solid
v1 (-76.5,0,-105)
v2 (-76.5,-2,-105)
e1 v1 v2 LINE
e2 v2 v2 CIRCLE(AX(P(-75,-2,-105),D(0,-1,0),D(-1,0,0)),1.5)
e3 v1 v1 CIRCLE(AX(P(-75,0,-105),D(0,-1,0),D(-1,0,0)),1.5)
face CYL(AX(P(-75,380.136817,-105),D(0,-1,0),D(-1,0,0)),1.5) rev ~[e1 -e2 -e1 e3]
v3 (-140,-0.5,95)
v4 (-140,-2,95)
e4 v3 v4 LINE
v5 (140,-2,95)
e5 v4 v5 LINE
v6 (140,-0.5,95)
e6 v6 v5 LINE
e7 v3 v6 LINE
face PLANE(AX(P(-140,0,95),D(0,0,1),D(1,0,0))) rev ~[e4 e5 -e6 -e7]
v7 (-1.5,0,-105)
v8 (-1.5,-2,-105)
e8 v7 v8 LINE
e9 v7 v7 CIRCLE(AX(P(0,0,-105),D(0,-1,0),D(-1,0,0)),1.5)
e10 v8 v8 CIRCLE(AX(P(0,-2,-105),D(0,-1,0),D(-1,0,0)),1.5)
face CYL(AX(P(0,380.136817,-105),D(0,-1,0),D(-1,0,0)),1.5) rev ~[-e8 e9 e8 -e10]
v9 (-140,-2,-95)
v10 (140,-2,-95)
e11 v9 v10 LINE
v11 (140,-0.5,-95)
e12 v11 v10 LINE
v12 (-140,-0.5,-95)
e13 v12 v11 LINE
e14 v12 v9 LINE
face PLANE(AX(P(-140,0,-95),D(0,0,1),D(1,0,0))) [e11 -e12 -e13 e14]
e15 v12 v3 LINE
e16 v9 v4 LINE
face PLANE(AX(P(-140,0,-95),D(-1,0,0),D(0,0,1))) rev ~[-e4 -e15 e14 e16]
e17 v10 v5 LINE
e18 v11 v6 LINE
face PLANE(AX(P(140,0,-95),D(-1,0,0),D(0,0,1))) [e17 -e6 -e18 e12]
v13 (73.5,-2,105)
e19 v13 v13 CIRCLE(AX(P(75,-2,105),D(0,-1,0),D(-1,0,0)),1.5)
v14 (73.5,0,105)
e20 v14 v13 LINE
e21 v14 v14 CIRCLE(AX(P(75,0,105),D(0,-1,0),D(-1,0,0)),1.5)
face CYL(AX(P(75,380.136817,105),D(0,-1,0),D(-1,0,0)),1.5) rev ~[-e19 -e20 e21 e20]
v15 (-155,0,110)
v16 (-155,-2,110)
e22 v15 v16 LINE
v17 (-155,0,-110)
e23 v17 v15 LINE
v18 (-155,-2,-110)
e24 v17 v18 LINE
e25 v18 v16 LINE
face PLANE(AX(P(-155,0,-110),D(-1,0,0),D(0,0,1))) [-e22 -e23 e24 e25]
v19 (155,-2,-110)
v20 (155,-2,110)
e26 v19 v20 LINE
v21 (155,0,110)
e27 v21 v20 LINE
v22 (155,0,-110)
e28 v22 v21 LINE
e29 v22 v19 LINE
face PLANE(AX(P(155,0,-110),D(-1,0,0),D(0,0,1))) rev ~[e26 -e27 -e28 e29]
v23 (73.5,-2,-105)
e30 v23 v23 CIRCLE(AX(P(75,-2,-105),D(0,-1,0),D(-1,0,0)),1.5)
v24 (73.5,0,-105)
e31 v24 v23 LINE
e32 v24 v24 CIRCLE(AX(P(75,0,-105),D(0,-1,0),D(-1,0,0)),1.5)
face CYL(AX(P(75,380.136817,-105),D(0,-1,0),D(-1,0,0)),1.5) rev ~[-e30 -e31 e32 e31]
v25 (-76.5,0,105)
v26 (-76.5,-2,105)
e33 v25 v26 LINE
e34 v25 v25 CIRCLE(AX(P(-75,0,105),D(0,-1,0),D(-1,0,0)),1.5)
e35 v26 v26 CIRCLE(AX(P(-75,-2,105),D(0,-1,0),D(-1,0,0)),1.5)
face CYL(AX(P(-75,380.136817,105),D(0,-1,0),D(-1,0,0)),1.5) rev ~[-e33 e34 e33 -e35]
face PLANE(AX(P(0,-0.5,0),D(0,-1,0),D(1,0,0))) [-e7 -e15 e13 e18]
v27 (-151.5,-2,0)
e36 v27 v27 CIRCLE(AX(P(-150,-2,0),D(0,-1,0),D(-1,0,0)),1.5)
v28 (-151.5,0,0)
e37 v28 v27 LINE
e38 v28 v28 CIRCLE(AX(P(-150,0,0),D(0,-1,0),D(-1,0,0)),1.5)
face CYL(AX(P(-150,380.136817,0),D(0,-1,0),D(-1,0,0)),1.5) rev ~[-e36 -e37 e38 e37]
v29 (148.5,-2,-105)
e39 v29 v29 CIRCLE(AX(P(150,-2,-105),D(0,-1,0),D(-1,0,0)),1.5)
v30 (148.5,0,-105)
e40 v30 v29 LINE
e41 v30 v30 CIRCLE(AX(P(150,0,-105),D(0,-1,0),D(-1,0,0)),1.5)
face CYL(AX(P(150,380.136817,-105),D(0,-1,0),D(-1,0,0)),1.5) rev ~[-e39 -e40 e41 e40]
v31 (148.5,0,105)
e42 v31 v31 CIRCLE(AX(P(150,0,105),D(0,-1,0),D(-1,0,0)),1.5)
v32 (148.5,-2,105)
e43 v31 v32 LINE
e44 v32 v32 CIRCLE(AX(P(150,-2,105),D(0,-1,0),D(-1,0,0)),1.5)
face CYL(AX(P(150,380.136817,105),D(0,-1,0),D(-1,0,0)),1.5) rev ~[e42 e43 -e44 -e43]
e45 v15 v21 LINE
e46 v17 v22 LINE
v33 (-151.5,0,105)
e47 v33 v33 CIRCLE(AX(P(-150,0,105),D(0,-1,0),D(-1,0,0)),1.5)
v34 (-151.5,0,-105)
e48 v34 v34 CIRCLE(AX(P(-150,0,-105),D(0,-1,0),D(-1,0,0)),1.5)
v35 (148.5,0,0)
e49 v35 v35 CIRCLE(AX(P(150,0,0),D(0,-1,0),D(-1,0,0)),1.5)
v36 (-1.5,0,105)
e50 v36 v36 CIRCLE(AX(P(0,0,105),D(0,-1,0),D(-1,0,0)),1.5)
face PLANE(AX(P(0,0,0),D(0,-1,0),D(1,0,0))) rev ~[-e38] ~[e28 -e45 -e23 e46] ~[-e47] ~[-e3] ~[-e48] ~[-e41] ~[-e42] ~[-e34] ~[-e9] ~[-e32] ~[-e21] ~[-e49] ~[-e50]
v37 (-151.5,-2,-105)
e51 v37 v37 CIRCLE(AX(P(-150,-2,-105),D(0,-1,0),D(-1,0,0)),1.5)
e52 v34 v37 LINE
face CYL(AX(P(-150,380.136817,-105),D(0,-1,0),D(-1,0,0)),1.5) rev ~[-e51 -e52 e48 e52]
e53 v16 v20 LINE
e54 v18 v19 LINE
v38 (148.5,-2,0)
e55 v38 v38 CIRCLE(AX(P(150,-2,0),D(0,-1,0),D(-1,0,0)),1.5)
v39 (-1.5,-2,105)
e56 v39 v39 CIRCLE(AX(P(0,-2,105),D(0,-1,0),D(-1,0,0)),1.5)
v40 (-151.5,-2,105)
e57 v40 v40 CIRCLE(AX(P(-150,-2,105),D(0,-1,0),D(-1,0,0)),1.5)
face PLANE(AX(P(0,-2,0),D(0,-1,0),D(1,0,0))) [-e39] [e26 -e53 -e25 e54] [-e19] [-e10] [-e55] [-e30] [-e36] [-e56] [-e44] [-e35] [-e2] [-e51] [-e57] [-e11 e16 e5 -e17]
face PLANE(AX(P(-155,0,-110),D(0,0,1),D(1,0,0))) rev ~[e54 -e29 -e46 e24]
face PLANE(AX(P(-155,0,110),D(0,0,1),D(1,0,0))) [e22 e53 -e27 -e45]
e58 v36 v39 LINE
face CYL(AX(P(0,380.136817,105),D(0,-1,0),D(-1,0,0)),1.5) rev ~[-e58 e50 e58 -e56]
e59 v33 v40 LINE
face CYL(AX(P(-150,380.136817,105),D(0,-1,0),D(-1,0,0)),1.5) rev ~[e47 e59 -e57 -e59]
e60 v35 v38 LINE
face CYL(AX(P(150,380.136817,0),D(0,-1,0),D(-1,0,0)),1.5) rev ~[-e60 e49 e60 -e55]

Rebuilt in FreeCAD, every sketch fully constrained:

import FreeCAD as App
import Part
import Sketcher

doc = App.newDocument("Part")
body = doc.addObject("PartDesign::Body", "Body")

sketch1 = body.newObject("Sketcher::SketchObject", "Sketch")
sketch1.AttachmentSupport = (doc.getObject("XZ_Plane"), [""])
sketch1.MapMode = "FlatFace"
sketch1.addGeometry(Part.LineSegment(App.Vector(-155, 110, 0), App.Vector(-155, -110, 0)), False)
sketch1.addGeometry(Part.LineSegment(App.Vector(-155, -110, 0), App.Vector(155, -110, 0)), False)
sketch1.addGeometry(Part.LineSegment(App.Vector(155, -110, 0), App.Vector(155, 110, 0)), False)
sketch1.addGeometry(Part.LineSegment(App.Vector(155, 110, 0), App.Vector(-155, 110, 0)), False)
sketch1.addGeometry(Part.LineSegment(App.Vector(140, -95, 0), App.Vector(-140, -95, 0)), False)
sketch1.addGeometry(Part.LineSegment(App.Vector(-140, -95, 0), App.Vector(-140, 95, 0)), False)
sketch1.addGeometry(Part.LineSegment(App.Vector(-140, 95, 0), App.Vector(140, 95, 0)), False)
sketch1.addGeometry(Part.LineSegment(App.Vector(140, 95, 0), App.Vector(140, -95, 0)), False)
sketch1.addConstraint(Sketcher.Constraint("Coincident", 0, 2, 1, 1))
sketch1.addConstraint(Sketcher.Constraint("Coincident", 1, 2, 2, 1))
sketch1.addConstraint(Sketcher.Constraint("Coincident", 2, 2, 3, 1))
sketch1.addConstraint(Sketcher.Constraint("Coincident", 3, 2, 0, 1))
sketch1.addConstraint(Sketcher.Constraint("Coincident", 4, 2, 5, 1))
sketch1.addConstraint(Sketcher.Constraint("Coincident", 5, 2, 6, 1))
sketch1.addConstraint(Sketcher.Constraint("Coincident", 6, 2, 7, 1))
sketch1.addConstraint(Sketcher.Constraint("Coincident", 7, 2, 4, 1))
sketch1.addConstraint(Sketcher.Constraint("Vertical", 0))
sketch1.addConstraint(Sketcher.Constraint("Horizontal", 1))
sketch1.addConstraint(Sketcher.Constraint("Vertical", 2))
sketch1.addConstraint(Sketcher.Constraint("Horizontal", 3))
sketch1.addConstraint(Sketcher.Constraint("Horizontal", 4))
sketch1.addConstraint(Sketcher.Constraint("Vertical", 5))
sketch1.addConstraint(Sketcher.Constraint("Horizontal", 6))
sketch1.addConstraint(Sketcher.Constraint("Vertical", 7))
sketch1.addConstraint(Sketcher.Constraint("Symmetric", 0, 2, 2, 2, -1, 1))
sketch1.addConstraint(Sketcher.Constraint("Symmetric", 4, 2, 6, 2, -1, 1))
sketch1.addConstraint(Sketcher.Constraint("DistanceX", 1, 1, 1, 2, 310.0))
sketch1.addConstraint(Sketcher.Constraint("DistanceX", 4, 2, 4, 1, 280.0))
sketch1.addConstraint(Sketcher.Constraint("DistanceY", 0, 2, 0, 1, 220.0))
sketch1.addConstraint(Sketcher.Constraint("DistanceY", 5, 1, 5, 2, 190.0))
pad1 = body.newObject("PartDesign::Pad", "Pad")
pad1.Profile = sketch1
pad1.Length = 2

sketch2 = body.newObject("Sketcher::SketchObject", "Sketch001")
sketch2.AttachmentSupport = (doc.getObject("XZ_Plane"), [""])
sketch2.MapMode = "FlatFace"
sketch2.addGeometry(Part.Circle(App.Vector(-150, -105, 0), App.Vector(0, 0, 1), 1.5), False)
sketch2.addGeometry(Part.Circle(App.Vector(-75, -105, 0), App.Vector(0, 0, 1), 1.5), False)
sketch2.addGeometry(Part.Circle(App.Vector(0, -105, 0), App.Vector(0, 0, 1), 1.5), False)
sketch2.addGeometry(Part.Circle(App.Vector(75, -105, 0), App.Vector(0, 0, 1), 1.5), False)
sketch2.addGeometry(Part.Circle(App.Vector(150, -105, 0), App.Vector(0, 0, 1), 1.5), False)
sketch2.addGeometry(Part.Circle(App.Vector(150, 0, 0), App.Vector(0, 0, 1), 1.5), False)
sketch2.addGeometry(Part.Circle(App.Vector(150, 105, 0), App.Vector(0, 0, 1), 1.5), False)
sketch2.addGeometry(Part.Circle(App.Vector(75, 105, 0), App.Vector(0, 0, 1), 1.5), False)
sketch2.addGeometry(Part.Circle(App.Vector(0, 105, 0), App.Vector(0, 0, 1), 1.5), False)
sketch2.addGeometry(Part.Circle(App.Vector(-75, 105, 0), App.Vector(0, 0, 1), 1.5), False)
sketch2.addGeometry(Part.Circle(App.Vector(-150, 105, 0), App.Vector(0, 0, 1), 1.5), False)
sketch2.addGeometry(Part.Circle(App.Vector(-150, 0, 0), App.Vector(0, 0, 1), 1.5), False)
sketch2.addConstraint(Sketcher.Constraint("Equal", 0, 1))
sketch2.addConstraint(Sketcher.Constraint("Equal", 1, 2))
sketch2.addConstraint(Sketcher.Constraint("Equal", 2, 3))
sketch2.addConstraint(Sketcher.Constraint("Equal", 3, 4))
sketch2.addConstraint(Sketcher.Constraint("Equal", 4, 5))
sketch2.addConstraint(Sketcher.Constraint("Equal", 5, 6))
sketch2.addConstraint(Sketcher.Constraint("Equal", 6, 7))
sketch2.addConstraint(Sketcher.Constraint("Equal", 7, 8))
sketch2.addConstraint(Sketcher.Constraint("Equal", 8, 9))
sketch2.addConstraint(Sketcher.Constraint("Equal", 9, 10))
sketch2.addConstraint(Sketcher.Constraint("Equal", 10, 11))
sketch2.addConstraint(Sketcher.Constraint("Symmetric", 0, 3, 6, 3, -1, 1))
sketch2.addConstraint(Sketcher.Constraint("Symmetric", 1, 3, 7, 3, -1, 1))
sketch2.addConstraint(Sketcher.Constraint("Symmetric", 2, 3, 8, 3, -1, 1))
sketch2.addConstraint(Sketcher.Constraint("Symmetric", 3, 3, 9, 3, -1, 1))
sketch2.addConstraint(Sketcher.Constraint("Symmetric", 4, 3, 10, 3, -1, 1))
sketch2.addConstraint(Sketcher.Constraint("Symmetric", 5, 3, 11, 3, -1, 1))
sketch2.addConstraint(Sketcher.Constraint("Symmetric", 1, 3, 3, 3, -2))
sketch2.addConstraint(Sketcher.Constraint("Symmetric", 0, 3, 4, 3, -2))
sketch2.addConstraint(Sketcher.Constraint("PointOnObject", 2, 3, -2))
sketch2.addConstraint(Sketcher.Constraint("PointOnObject", 5, 3, -1))
sketch2.addConstraint(Sketcher.Constraint("Horizontal", 0, 3, 1, 3))
sketch2.addConstraint(Sketcher.Constraint("Horizontal", 1, 3, 2, 3))
sketch2.addConstraint(Sketcher.Constraint("Vertical", 4, 3, 5, 3))
sketch2.addConstraint(Sketcher.Constraint("Diameter", 0, 3.0))
sketch2.addConstraint(Sketcher.Constraint("DistanceX", 0, 3, -1, 1, 150.0))
sketch2.addConstraint(Sketcher.Constraint("DistanceY", 0, 3, -1, 1, 105.0))
sketch2.addConstraint(Sketcher.Constraint("DistanceX", 1, 3, -1, 1, 75.0))
doc.recompute()
hole = body.newObject("PartDesign::Hole", "Hole")
hole.Profile = sketch2
hole.ThreadType = "None"
hole.Diameter = 3
hole.DepthType = "ThroughAll"
hole.Reversed = True

sketch3 = body.newObject("Sketcher::SketchObject", "Sketch002")
sketch3.AttachmentSupport = (doc.getObject("XZ_Plane"), [""])
sketch3.MapMode = "FlatFace"
sketch3.addGeometry(Part.LineSegment(App.Vector(-140, 95, 0), App.Vector(-140, -95, 0)), False)
sketch3.addGeometry(Part.LineSegment(App.Vector(-140, -95, 0), App.Vector(140, -95, 0)), False)
sketch3.addGeometry(Part.LineSegment(App.Vector(140, -95, 0), App.Vector(140, 95, 0)), False)
sketch3.addGeometry(Part.LineSegment(App.Vector(140, 95, 0), App.Vector(-140, 95, 0)), False)
sketch3.addConstraint(Sketcher.Constraint("Coincident", 0, 2, 1, 1))
sketch3.addConstraint(Sketcher.Constraint("Coincident", 1, 2, 2, 1))
sketch3.addConstraint(Sketcher.Constraint("Coincident", 2, 2, 3, 1))
sketch3.addConstraint(Sketcher.Constraint("Coincident", 3, 2, 0, 1))
sketch3.addConstraint(Sketcher.Constraint("Vertical", 0))
sketch3.addConstraint(Sketcher.Constraint("Horizontal", 1))
sketch3.addConstraint(Sketcher.Constraint("Vertical", 2))
sketch3.addConstraint(Sketcher.Constraint("Horizontal", 3))
sketch3.addConstraint(Sketcher.Constraint("Symmetric", 0, 2, 2, 2, -1, 1))
sketch3.addConstraint(Sketcher.Constraint("DistanceX", 1, 1, 1, 2, 280.0))
sketch3.addConstraint(Sketcher.Constraint("DistanceY", 0, 2, 0, 1, 190.0))
pad2 = body.newObject("PartDesign::Pad", "Pad001")
pad2.Profile = sketch3
pad2.Length = 0.5

doc.recompute()
